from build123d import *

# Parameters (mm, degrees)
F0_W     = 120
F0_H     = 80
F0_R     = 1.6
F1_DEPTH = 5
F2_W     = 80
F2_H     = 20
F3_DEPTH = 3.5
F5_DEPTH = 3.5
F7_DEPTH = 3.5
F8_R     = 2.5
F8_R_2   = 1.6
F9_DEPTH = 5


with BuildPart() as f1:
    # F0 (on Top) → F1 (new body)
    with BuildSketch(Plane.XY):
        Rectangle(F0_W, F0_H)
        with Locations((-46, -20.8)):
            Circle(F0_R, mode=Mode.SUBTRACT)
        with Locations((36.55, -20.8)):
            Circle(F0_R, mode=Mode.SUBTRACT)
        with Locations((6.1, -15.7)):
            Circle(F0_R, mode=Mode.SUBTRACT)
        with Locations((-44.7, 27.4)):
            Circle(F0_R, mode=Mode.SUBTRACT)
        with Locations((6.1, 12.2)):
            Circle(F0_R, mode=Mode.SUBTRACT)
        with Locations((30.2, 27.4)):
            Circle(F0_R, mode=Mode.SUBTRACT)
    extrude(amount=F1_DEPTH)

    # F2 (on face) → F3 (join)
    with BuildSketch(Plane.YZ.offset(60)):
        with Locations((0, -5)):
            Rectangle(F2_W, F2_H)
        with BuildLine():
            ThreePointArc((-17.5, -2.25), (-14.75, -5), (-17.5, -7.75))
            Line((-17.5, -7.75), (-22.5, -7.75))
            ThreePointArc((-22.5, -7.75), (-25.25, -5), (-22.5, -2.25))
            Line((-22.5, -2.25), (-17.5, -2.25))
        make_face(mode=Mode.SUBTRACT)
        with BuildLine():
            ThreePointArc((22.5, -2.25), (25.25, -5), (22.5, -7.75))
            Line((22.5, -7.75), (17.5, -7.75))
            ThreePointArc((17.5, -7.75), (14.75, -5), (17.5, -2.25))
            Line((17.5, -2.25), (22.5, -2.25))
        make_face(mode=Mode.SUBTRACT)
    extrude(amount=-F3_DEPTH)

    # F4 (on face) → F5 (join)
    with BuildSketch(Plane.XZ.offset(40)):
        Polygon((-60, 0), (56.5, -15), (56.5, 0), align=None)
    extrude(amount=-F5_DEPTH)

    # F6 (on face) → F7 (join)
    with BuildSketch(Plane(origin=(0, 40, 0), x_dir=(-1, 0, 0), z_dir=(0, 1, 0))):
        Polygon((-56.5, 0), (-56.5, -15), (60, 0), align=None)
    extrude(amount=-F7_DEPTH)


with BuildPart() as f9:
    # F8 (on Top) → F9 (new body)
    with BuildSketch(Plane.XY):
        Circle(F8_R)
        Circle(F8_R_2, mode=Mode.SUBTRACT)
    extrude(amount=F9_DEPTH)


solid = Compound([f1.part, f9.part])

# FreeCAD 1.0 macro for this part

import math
import FreeCAD as App
import Part
import Sketcher
Q = App.Units.Quantity

doc = App.newDocument("Part")
body = doc.addObject("PartDesign::Body", "Body")

sketch1 = body.newObject("Sketcher::SketchObject", "Sketch")
sketch1.AttachmentSupport = (doc.getObject("XY_Plane"), [""])
sketch1.MapMode = "FlatFace"
sketch1.addGeometry(Part.LineSegment(App.Vector(-60, 40, 0), App.Vector(-60, -40, 0)), False)
sketch1.addGeometry(Part.LineSegment(App.Vector(-60, -40, 0), App.Vector(60, -40, 0)), False)
sketch1.addGeometry(Part.LineSegment(App.Vector(60, -40, 0), App.Vector(60, 40, 0)), False)
sketch1.addGeometry(Part.LineSegment(App.Vector(60, 40, 0), App.Vector(-60, 40, 0)), False)
sketch1.addGeometry(Part.Circle(App.Vector(-46, -20.8, 0), App.Vector(0, 0, 1), 1.6), False)
sketch1.addGeometry(Part.Circle(App.Vector(6.1, -15.7, 0), App.Vector(0, 0, 1), 1.6), False)
sketch1.addGeometry(Part.Circle(App.Vector(36.55, -20.8, 0), App.Vector(0, 0, 1), 1.6), False)
sketch1.addGeometry(Part.Circle(App.Vector(-44.7, 27.4, 0), App.Vector(0, 0, 1), 1.6), False)
sketch1.addGeometry(Part.Circle(App.Vector(6.1, 12.2, 0), App.Vector(0, 0, 1), 1.6), False)
sketch1.addGeometry(Part.Circle(App.Vector(30.2, 27.4, 0), App.Vector(0, 0, 1), 1.6), False)
sketch1.addConstraint(Sketcher.Constraint("Coincident", 0, 2, 1, 1))
sketch1.addConstraint(Sketcher.Constraint("Coincident", 1, 2, 2, 1))
sketch1.addConstraint(Sketcher.Constraint("Coincident", 2, 2, 3, 1))
sketch1.addConstraint(Sketcher.Constraint("Coincident", 3, 2, 0, 1))
sketch1.addConstraint(Sketcher.Constraint("Vertical", 0))
sketch1.addConstraint(Sketcher.Constraint("Horizontal", 1))
sketch1.addConstraint(Sketcher.Constraint("Vertical", 2))
sketch1.addConstraint(Sketcher.Constraint("Horizontal", 3))
sketch1.addConstraint(Sketcher.Constraint("Equal", 4, 5))
sketch1.addConstraint(Sketcher.Constraint("Equal", 5, 6))
sketch1.addConstraint(Sketcher.Constraint("Equal", 6, 7))
sketch1.addConstraint(Sketcher.Constraint("Equal", 7, 8))
sketch1.addConstraint(Sketcher.Constraint("Equal", 8, 9))
sketch1.addConstraint(Sketcher.Constraint("Symmetric", 0, 2, 2, 2, -1, 1))
sketch1.addConstraint(Sketcher.Constraint("Horizontal", 4, 3, 6, 3))
sketch1.addConstraint(Sketcher.Constraint("Horizontal", 7, 3, 9, 3))
sketch1.addConstraint(Sketcher.Constraint("Vertical", 5, 3, 8, 3))
sketch1.addConstraint(Sketcher.Constraint("Diameter", 4, Q("3.2 mm")))
sketch1.addConstraint(Sketcher.Constraint("DistanceX", 1, 1, 1, 2, Q("120 mm")))
sketch1.addConstraint(Sketcher.Constraint("DistanceY", 0, 2, 0, 1, Q("80 mm")))
sketch1.addConstraint(Sketcher.Constraint("DistanceX", 4, 3, -1, 1, Q("46 mm")))
sketch1.addConstraint(Sketcher.Constraint("DistanceY", 6, 3, 8, 3, Q("33 mm")))
sketch1.addConstraint(Sketcher.Constraint("DistanceY", 4, 3, -1, 1, Q("20.8 mm")))
sketch1.addConstraint(Sketcher.Constraint("DistanceX", -1, 1, 5, 3, Q("6.1 mm")))
sketch1.addConstraint(Sketcher.Constraint("DistanceY", 5, 3, -1, 1, Q("15.7 mm")))
sketch1.addConstraint(Sketcher.Constraint("DistanceX", 7, 3, -1, 1, Q("44.7 mm")))
sketch1.addConstraint(Sketcher.Constraint("DistanceY", -1, 1, 7, 3, Q("27.4 mm")))
sketch1.addConstraint(Sketcher.Constraint("DistanceX", -1, 1, 9, 3, Q("30.2 mm")))
sketch1.addConstraint(Sketcher.Constraint("DistanceX", -1, 1, 6, 3, Q("36.55 mm")))
pad1 = body.newObject("PartDesign::Pad", "Pad")
pad1.Profile = sketch1
pad1.Length = 5

sketch2 = body.newObject("Sketcher::SketchObject", "Sketch001")
sketch2.AttachmentSupport = (doc.getObject("YZ_Plane"), [""])
sketch2.MapMode = "FlatFace"
sketch2.AttachmentOffset = App.Placement(App.Vector(0, 0, 60), App.Rotation())
sketch2.addGeometry(Part.LineSegment(App.Vector(-40, 5, 0), App.Vector(-40, -15, 0)), False)
sketch2.addGeometry(Part.LineSegment(App.Vector(-40, -15, 0), App.Vector(40, -15, 0)), False)
sketch2.addGeometry(Part.LineSegment(App.Vector(40, -15, 0), App.Vector(40, 5, 0)), False)
sketch2.addGeometry(Part.LineSegment(App.Vector(40, 5, 0), App.Vector(-40, 5, 0)), False)
sketch2.addGeometry(Part.LineSegment(App.Vector(-22.5, -2.25, 0), App.Vector(-17.5, -2.25, 0)), False)
sketch2.addGeometry(Part.ArcOfCircle(Part.Circle(App.Vector(-17.5, -5, 0), App.Vector(0, 0, 1), 2.75), math.radians(-90), math.radians(90)), False)
sketch2.addGeometry(Part.LineSegment(App.Vector(-17.5, -7.75, 0), App.Vector(-22.5, -7.75, 0)), False)
sketch2.addGeometry(Part.ArcOfCircle(Part.Circle(App.Vector(-22.5, -5, 0), App.Vector(0, 0, 1), 2.75), math.radians(90), math.radians(270)), False)
sketch2.addGeometry(Part.LineSegment(App.Vector(17.5, -2.25, 0), App.Vector(22.5, -2.25, 0)), False)
sketch2.addGeometry(Part.ArcOfCircle(Part.Circle(App.Vector(22.5, -5, 0), App.Vector(0, 0, 1), 2.75), math.radians(-90), math.radians(90)), False)
sketch2.addGeometry(Part.LineSegment(App.Vector(22.5, -7.75, 0), App.Vector(17.5, -7.75, 0)), False)
sketch2.addGeometry(Part.ArcOfCircle(Part.Circle(App.Vector(17.5, -5, 0), App.Vector(0, 0, 1), 2.75), math.radians(90), math.radians(270)), False)
sketch2.addConstraint(Sketcher.Constraint("Coincident", 0, 2, 1, 1))
sketch2.addConstraint(Sketcher.Constraint("Coincident", 1, 2, 2, 1))
sketch2.addConstraint(Sketcher.Constraint("Coincident", 2, 2, 3, 1))
sketch2.addConstraint(Sketcher.Constraint("Coincident", 3, 2, 0, 1))
sketch2.addConstraint(Sketcher.Constraint("Tangent", 4, 2, 5, 2))
sketch2.addConstraint(Sketcher.Constraint("Tangent", 5, 1, 6, 1))
sketch2.addConstraint(Sketcher.Constraint("Tangent", 6, 2, 7, 2))
sketch2.addConstraint(Sketcher.Constraint("Tangent", 7, 1, 4, 1))
sketch2.addConstraint(Sketcher.Constraint("Tangent", 8, 2, 9, 2))
sketch2.addConstraint(Sketcher.Constraint("Tangent", 9, 1, 10, 1))
sketch2.addConstraint(Sketcher.Constraint("Tangent", 10, 2, 11, 2))
sketch2.addConstraint(Sketcher.Constraint("Tangent", 11, 1, 8, 1))
sketch2.addConstraint(Sketcher.Constraint("Vertical", 0))
sketch2.addConstraint(Sketcher.Constraint("Horizontal", 1))
sketch2.addConstraint(Sketcher.Constraint("Vertical", 2))
sketch2.addConstraint(Sketcher.Constraint("Horizontal", 3))
sketch2.addConstraint(Sketcher.Constraint("Horizontal", 4))
sketch2.addConstraint(Sketcher.Constraint("Horizontal", 6))
sketch2.addConstraint(Sketcher.Constraint("Horizontal", 8))
sketch2.addConstraint(Sketcher.Constraint("Horizontal", 10))
sketch2.addConstraint(Sketcher.Constraint("Equal", 7, 9))
sketch2.addConstraint(Sketcher.Constraint("Symmetric", 7, 3, 9, 3, -2))
sketch2.addConstraint(Sketcher.Constraint("Equal", 6, 8))
sketch2.addConstraint(Sketcher.Constraint("DistanceX", 1, 1, 1, 2, Q("80 mm")))
sketch2.addConstraint(Sketcher.Constraint("DistanceX", 4, 1, 4, 2, Q("5 mm")))
sketch2.addConstraint(Sketcher.Constraint("DistanceY", 0, 2, 0, 1, Q("20 mm")))
sketch2.addConstraint(Sketcher.Constraint("Radius", 5, Q("2.75 mm")))
sketch2.addConstraint(Sketcher.Constraint("DistanceY", 5, 3, -1, 1, Q("5 mm")))
sketch2.addConstraint(Sketcher.Constraint("DistanceX", 0, 2, -1, 1, Q("40 mm")))
sketch2.addConstraint(Sketcher.Constraint("DistanceY", 0, 2, -1, 1, Q("15 mm")))
sketch2.addConstraint(Sketcher.Constraint("DistanceX", 5, 3, 9, 3, Q("40 mm")))
pad2 = body.newObject("PartDesign::Pad", "Pad001")
pad2.Profile = sketch2
pad2.Length = 3.5
pad2.Reversed = True

sketch3 = body.newObject("Sketcher::SketchObject", "Sketch002")
sketch3.AttachmentSupport = (doc.getObject("XZ_Plane"), [""])
sketch3.MapMode = "FlatFace"
sketch3.AttachmentOffset = App.Placement(App.Vector(0, 0, 40), App.Rotation())
sketch3.addGeometry(Part.LineSegment(App.Vector(-60, 0, 0), App.Vector(56.5, -15, 0)), False)
sketch3.addGeometry(Part.LineSegment(App.Vector(56.5, -15, 0), App.Vector(56.5, 0, 0)), False)
sketch3.addGeometry(Part.LineSegment(App.Vector(56.5, 0, 0), App.Vector(-60, 0, 0)), False)
sketch3.addConstraint(Sketcher.Constraint("Coincident", 0, 2, 1, 1))
sketch3.addConstraint(Sketcher.Constraint("Coincident", 1, 2, 2, 1))
sketch3.addConstraint(Sketcher.Constraint("Coincident", 2, 2, 0, 1))
sketch3.addConstraint(Sketcher.Constraint("Vertical", 1))
sketch3.addConstraint(Sketcher.Constraint("Horizontal", 2))
sketch3.addConstraint(Sketcher.Constraint("PointOnObject", 1, 2, -1))
sketch3.addConstraint(Sketcher.Constraint("DistanceY", 1, 1, 1, 2, Q("15 mm")))
sketch3.addConstraint(Sketcher.Constraint("DistanceX", 2, 2, 2, 1, Q("116.5 mm")))
sketch3.addConstraint(Sketcher.Constraint("DistanceX", 2, 2, -1, 1, Q("60 mm")))
pad3 = body.newObject("PartDesign::Pad", "Pad002")
pad3.Profile = sketch3
pad3.Length = 3.5
pad3.Reversed = True

sketch4 = body.newObject("Sketcher::SketchObject", "Sketch003")
sketch4.AttachmentSupport = (doc.getObject("XZ_Plane"), [""])
sketch4.MapMode = "FlatFace"
sketch4.AttachmentOffset = App.Placement(App.Vector(0, 0, -40), App.Rotation())
sketch4.addGeometry(Part.LineSegment(App.Vector(56.5, 0, 0), App.Vector(56.5, -15, 0)), False)
sketch4.addGeometry(Part.LineSegment(App.Vector(56.5, -15, 0), App.Vector(-60, 0, 0)), False)
sketch4.addGeometry(Part.LineSegment(App.Vector(-60, 0, 0), App.Vector(56.5, 0, 0)), False)
sketch4.addConstraint(Sketcher.Constraint("Coincident", 0, 2, 1, 1))
sketch4.addConstraint(Sketcher.Constraint("Coincident", 1, 2, 2, 1))
sketch4.addConstraint(Sketcher.Constraint("Coincident", 2, 2, 0, 1))
sketch4.addConstraint(Sketcher.Constraint("Vertical", 0))
sketch4.addConstraint(Sketcher.Constraint("Horizontal", 2))
sketch4.addConstraint(Sketcher.Constraint("PointOnObject", 1, 2, -1))
sketch4.addConstraint(Sketcher.Constraint("DistanceY", 0, 2, 0, 1, Q("15 mm")))
sketch4.addConstraint(Sketcher.Constraint("DistanceX", 2, 1, 2, 2, Q("116.5 mm")))
sketch4.addConstraint(Sketcher.Constraint("DistanceX", 1, 2, -1, 1, Q("60 mm")))
pad4 = body.newObject("PartDesign::Pad", "Pad003")
pad4.Profile = sketch4
pad4.Length = 3.5
body2 = doc.addObject("PartDesign::Body", "Body001")

sketch5 = body2.newObject("Sketcher::SketchObject", "Sketch004")
sketch5.AttachmentSupport = (doc.getObject("XY_Plane001"), [""])
sketch5.MapMode = "FlatFace"
sketch5.addGeometry(Part.Circle(App.Vector(0, 0, 0), App.Vector(0, 0, 1), 2.5), False)
sketch5.addGeometry(Part.Circle(App.Vector(0, 0, 0), App.Vector(0, 0, 1), 1.6), False)
sketch5.addConstraint(Sketcher.Constraint("Coincident", 0, 3, -1, 1))
sketch5.addConstraint(Sketcher.Constraint("Coincident", 1, 3, -1, 1))
sketch5.addConstraint(Sketcher.Constraint("Diameter", 0, Q("5 mm")))
sketch5.addConstraint(Sketcher.Constraint("Diameter", 1, Q("3.2 mm")))
pad5 = body2.newObject("PartDesign::Pad", "Pad004")
pad5.Profile = sketch5
pad5.Length = 5

doc.recompute()
